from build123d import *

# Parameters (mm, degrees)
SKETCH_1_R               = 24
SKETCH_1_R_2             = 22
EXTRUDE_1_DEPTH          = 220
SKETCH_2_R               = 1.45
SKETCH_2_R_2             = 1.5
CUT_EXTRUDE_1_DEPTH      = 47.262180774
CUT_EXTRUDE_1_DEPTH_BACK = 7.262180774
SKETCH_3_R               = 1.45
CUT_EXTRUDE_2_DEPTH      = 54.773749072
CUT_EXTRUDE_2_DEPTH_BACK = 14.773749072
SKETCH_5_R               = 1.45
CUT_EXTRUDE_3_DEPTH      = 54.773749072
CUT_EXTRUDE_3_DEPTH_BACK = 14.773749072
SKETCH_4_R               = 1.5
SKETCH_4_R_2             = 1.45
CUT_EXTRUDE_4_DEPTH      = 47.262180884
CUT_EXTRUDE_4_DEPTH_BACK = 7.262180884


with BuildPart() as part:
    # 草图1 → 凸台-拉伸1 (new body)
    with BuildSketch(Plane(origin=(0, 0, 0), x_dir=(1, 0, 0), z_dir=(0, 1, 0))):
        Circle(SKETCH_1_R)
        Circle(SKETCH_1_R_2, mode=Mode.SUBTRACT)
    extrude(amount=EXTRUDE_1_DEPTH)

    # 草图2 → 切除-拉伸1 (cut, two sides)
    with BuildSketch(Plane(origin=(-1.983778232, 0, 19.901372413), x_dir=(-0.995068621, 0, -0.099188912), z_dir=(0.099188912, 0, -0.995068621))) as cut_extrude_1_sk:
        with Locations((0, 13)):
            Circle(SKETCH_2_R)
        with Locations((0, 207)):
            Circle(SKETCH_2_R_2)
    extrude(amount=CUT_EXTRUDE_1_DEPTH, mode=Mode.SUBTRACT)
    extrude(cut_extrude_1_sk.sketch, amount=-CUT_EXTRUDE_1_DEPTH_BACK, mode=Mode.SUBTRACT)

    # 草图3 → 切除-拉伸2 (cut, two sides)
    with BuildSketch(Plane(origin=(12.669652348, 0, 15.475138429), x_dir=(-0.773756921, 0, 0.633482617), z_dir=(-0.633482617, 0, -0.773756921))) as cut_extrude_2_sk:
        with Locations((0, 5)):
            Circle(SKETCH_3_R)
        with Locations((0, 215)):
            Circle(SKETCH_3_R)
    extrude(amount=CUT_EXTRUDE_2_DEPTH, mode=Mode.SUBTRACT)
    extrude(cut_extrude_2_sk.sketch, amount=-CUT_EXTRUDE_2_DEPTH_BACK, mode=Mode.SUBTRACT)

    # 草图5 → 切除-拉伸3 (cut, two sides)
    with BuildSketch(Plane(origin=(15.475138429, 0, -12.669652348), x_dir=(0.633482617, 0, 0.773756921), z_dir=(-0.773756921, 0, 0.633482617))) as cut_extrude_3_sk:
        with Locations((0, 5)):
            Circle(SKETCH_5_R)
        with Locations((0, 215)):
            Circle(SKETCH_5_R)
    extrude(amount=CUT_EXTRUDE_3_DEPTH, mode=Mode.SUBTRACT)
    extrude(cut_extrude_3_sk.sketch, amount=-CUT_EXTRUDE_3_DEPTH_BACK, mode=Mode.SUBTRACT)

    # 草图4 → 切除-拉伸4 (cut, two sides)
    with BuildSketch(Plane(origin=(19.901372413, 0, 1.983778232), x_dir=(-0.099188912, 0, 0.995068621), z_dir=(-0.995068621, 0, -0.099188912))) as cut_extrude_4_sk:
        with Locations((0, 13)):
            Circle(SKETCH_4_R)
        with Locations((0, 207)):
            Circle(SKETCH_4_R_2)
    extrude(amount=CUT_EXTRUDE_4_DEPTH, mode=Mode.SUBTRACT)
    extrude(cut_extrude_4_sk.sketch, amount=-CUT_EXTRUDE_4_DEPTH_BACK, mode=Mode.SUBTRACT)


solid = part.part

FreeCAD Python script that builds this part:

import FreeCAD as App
import Part
import Sketcher

V = App.Vector

doc = App.newDocument("Part")
body = doc.addObject("PartDesign::Body", "Body")

sketch1 = body.newObject("Sketcher::SketchObject", "Sketch")
sketch1.AttachmentSupport = (doc.getObject("XZ_Plane"), [""])
sketch1.MapMode = "FlatFace"
sketch1.addGeometry(Part.Circle(V(0, 0, 0), V(0, 0, 1), 24), False)
sketch1.addGeometry(Part.Circle(V(0, 0, 0), V(0, 0, 1), 22), False)
sketch1.addConstraint(Sketcher.Constraint("Coincident", 0, 3, -1, 1))
sketch1.addConstraint(Sketcher.Constraint("Coincident", 1, 3, -1, 1))
sketch1.addConstraint(Sketcher.Constraint("Diameter", 0, 48.0))
sketch1.addConstraint(Sketcher.Constraint("Diameter", 1, 44.0))
pad1 = body.newObject("PartDesign::Pad", "Pad")
pad1.Profile = sketch1
pad1.Length = 220
pad1.Reversed = True

sketch2 = body.newObject("Sketcher::SketchObject", "Sketch001")
sketch2.Placement = App.Placement(V(-1.983778, 0, 19.901372), App.Rotation(V(-0.995068621, 0, -0.099188912), V(0, 1.000000001, 0), V(0.099188912, 0, -0.995068621), "ZXY"))
sketch2.addGeometry(Part.Circle(V(0, 13, 0), V(0, 0, 1), 1.4), False)
sketch2.addGeometry(Part.Circle(V(0, 207, 0), V(0, 0, 1), 1.5), False)
sketch2.addConstraint(Sketcher.Constraint("PointOnObject", 0, 3, -2))
sketch2.addConstraint(Sketcher.Constraint("PointOnObject", 1, 3, -2))
sketch2.addConstraint(Sketcher.Constraint("Diameter", 1, 3.0))
sketch2.addConstraint(Sketcher.Constraint("Diameter", 0, 2.9))
sketch2.addConstraint(Sketcher.Constraint("DistanceY", -1, 1, 0, 3, 13.0))
sketch2.addConstraint(Sketcher.Constraint("DistanceY", -1, 1, 1, 3, 207.0))
pocket1 = body.newObject("PartDesign::Pocket", "Pocket")
pocket1.Profile = sketch2
pocket1.Type = "ThroughAll"
pocket1.Midplane = True

sketch3 = body.newObject("Sketcher::SketchObject", "Sketch002")
sketch3.Placement = App.Placement(V(12.669652, 0, 15.475138), App.Rotation(V(-0.773756921, 0, 0.633482617), V(0, 0.999999999, 0), V(-0.633482617, 0, -0.773756921), "ZXY"))
sketch3.addGeometry(Part.Circle(V(0, 5, 0), V(0, 0, 1), 1.4), False)
sketch3.addGeometry(Part.Circle(V(0, 215, 0), V(0, 0, 1), 1.4), False)
sketch3.addConstraint(Sketcher.Constraint("Equal", 0, 1))
sketch3.addConstraint(Sketcher.Constraint("PointOnObject", 0, 3, -2))
sketch3.addConstraint(Sketcher.Constraint("PointOnObject", 1, 3, -2))
sketch3.addConstraint(Sketcher.Constraint("Diameter", 0, 2.9))
sketch3.addConstraint(Sketcher.Constraint("DistanceY", -1, 1, 0, 3, 5.0))
sketch3.addConstraint(Sketcher.Constraint("DistanceY", -1, 1, 1, 3, 215.0))
pocket2 = body.newObject("PartDesign::Pocket", "Pocket001")
pocket2.Profile = sketch3
pocket2.Type = "ThroughAll"
pocket2.Midplane = True

sketch4 = body.newObject("Sketcher::SketchObject", "Sketch003")
sketch4.Placement = App.Placement(V(15.475138, 0, -12.669652), App.Rotation(V(0.633482617, 0, 0.773756921), V(0, 0.999999999, 0), V(-0.773756921, 0, 0.633482617), "ZXY"))
sketch4.addGeometry(Part.Circle(V(0, 5, 0), V(0, 0, 1), 1.4), False)
sketch4.addGeometry(Part.Circle(V(0, 215, 0), V(0, 0, 1), 1.4), False)
sketch4.addConstraint(Sketcher.Constraint("Equal", 0, 1))
sketch4.addConstraint(Sketcher.Constraint("PointOnObject", 0, 3, -2))
sketch4.addConstraint(Sketcher.Constraint("PointOnObject", 1, 3, -2))
sketch4.addConstraint(Sketcher.Constraint("Diameter", 0, 2.9))
sketch4.addConstraint(Sketcher.Constraint("DistanceY", -1, 1, 0, 3, 5.0))
sketch4.addConstraint(Sketcher.Constraint("DistanceY", -1, 1, 1, 3, 215.0))
pocket3 = body.newObject("PartDesign::Pocket", "Pocket002")
pocket3.Profile = sketch4
pocket3.Type = "ThroughAll"
pocket3.Midplane = True

sketch5 = body.newObject("Sketcher::SketchObject", "Sketch004")
sketch5.Placement = App.Placement(V(19.901372, 0, 1.983778), App.Rotation(V(-0.099188912, 0, 0.995068621), V(0, 1.000000001, 0), V(-0.995068621, 0, -0.099188912), "ZXY"))
sketch5.addGeometry(Part.Circle(V(0, 13, 0), V(0, 0, 1), 1.5), False)
sketch5.addGeometry(Part.Circle(V(0, 207, 0), V(0, 0, 1), 1.4), False)
sketch5.addConstraint(Sketcher.Constraint("PointOnObject", 0, 3, -2))
sketch5.addConstraint(Sketcher.Constraint("PointOnObject", 1, 3, -2))
sketch5.addConstraint(Sketcher.Constraint("Diameter", 0, 3.0))
sketch5.addConstraint(Sketcher.Constraint("Diameter", 1, 2.9))
sketch5.addConstraint(Sketcher.Constraint("DistanceY", -1, 1, 0, 3, 13.0))
sketch5.addConstraint(Sketcher.Constraint("DistanceY", -1, 1, 1, 3, 207.0))
pocket4 = body.newObject("PartDesign::Pocket", "Pocket003")
pocket4.Profile = sketch5
pocket4.Type = "ThroughAll"
pocket4.Midplane = True

doc.recompute()
